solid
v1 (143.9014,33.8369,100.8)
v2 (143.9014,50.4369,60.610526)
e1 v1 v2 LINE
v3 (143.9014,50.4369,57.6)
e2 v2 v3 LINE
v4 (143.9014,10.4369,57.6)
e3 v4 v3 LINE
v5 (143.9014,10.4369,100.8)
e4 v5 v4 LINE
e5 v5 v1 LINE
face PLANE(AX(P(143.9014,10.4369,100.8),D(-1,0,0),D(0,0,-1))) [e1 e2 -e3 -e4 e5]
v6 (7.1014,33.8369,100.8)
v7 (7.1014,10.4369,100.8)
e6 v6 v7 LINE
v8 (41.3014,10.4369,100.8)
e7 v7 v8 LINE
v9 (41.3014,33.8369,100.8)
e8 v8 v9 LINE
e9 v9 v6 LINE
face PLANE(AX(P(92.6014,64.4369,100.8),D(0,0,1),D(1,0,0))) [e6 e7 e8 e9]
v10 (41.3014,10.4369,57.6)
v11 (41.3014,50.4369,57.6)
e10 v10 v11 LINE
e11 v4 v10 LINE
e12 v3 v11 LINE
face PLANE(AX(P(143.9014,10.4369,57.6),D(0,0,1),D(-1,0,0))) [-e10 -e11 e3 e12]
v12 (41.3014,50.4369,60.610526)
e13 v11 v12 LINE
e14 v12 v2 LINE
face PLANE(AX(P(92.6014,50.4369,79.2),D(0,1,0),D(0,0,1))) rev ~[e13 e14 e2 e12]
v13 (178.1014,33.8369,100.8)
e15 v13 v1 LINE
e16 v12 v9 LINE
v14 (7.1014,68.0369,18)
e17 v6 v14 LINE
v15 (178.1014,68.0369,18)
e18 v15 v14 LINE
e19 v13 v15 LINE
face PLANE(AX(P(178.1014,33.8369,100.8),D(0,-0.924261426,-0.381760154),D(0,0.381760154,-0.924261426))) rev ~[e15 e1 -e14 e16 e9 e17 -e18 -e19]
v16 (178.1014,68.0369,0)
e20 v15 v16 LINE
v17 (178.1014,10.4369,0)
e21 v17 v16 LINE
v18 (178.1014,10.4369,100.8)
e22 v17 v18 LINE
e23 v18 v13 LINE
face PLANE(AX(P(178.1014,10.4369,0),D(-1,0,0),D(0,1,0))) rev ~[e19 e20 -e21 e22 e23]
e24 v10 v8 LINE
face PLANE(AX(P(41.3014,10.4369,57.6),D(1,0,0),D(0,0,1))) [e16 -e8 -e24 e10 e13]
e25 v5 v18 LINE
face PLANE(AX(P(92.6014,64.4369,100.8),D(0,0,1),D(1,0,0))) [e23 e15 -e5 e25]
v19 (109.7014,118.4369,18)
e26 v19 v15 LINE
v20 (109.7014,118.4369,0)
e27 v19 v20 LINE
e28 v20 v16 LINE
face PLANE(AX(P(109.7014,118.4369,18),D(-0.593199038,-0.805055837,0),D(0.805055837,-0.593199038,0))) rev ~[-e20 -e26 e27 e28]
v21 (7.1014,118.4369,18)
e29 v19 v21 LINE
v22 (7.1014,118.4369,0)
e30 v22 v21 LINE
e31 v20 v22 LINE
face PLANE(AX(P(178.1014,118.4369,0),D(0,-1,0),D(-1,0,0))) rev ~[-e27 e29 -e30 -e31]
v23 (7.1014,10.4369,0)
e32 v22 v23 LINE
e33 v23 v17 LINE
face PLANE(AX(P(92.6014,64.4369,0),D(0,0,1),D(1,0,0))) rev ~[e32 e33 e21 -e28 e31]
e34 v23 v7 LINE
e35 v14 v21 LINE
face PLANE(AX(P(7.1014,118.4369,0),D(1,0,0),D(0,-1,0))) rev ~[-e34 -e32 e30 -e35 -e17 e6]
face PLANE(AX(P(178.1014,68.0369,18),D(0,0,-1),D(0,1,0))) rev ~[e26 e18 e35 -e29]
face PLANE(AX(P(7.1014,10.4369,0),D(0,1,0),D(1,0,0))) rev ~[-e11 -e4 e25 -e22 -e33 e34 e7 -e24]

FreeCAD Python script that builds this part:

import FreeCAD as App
import Part
import Sketcher
from FreeCAD import Vector

doc = App.newDocument("Part")
body = doc.addObject("PartDesign::Body", "Body")

sketch1 = body.newObject("Sketcher::SketchObject", "Sketch")
sketch1.AttachmentSupport = (doc.getObject("XY_Plane"), [""])
sketch1.MapMode = "FlatFace"
sketch1.addGeometry(Part.LineSegment(Vector(7, 118, 0), Vector(7, 10, 0)), False)
sketch1.addGeometry(Part.LineSegment(Vector(7, 10, 0), Vector(178, 10, 0)), False)
sketch1.addGeometry(Part.LineSegment(Vector(178, 10, 0), Vector(178, 118, 0)), False)
sketch1.addGeometry(Part.LineSegment(Vector(178, 118, 0), Vector(7, 118, 0)), False)
sketch1.addConstraint(Sketcher.Constraint("Coincident", 0, 2, 1, 1))
sketch1.addConstraint(Sketcher.Constraint("Coincident", 1, 2, 2, 1))
sketch1.addConstraint(Sketcher.Constraint("Coincident", 2, 2, 3, 1))
sketch1.addConstraint(Sketcher.Constraint("Coincident", 3, 2, 0, 1))
sketch1.addConstraint(Sketcher.Constraint("Vertical", 0))
sketch1.addConstraint(Sketcher.Constraint("Horizontal", 1))
sketch1.addConstraint(Sketcher.Constraint("Vertical", 2))
sketch1.addConstraint(Sketcher.Constraint("Horizontal", 3))
sketch1.addConstraint(Sketcher.Constraint("DistanceX", 1, 1, 1, 2, 171.0))
sketch1.addConstraint(Sketcher.Constraint("DistanceY", 0, 2, 0, 1, 108.0))
sketch1.addConstraint(Sketcher.Constraint("DistanceY", -1, 1, 0, 2, 10.437))
sketch1.addConstraint(Sketcher.Constraint("DistanceX", -1, 1, 0, 2, 7.1014))
pad1 = body.newObject("PartDesign::Pad", "Pad")
pad1.Profile = sketch1
pad1.Length = 100.8

sketch2 = body.newObject("Sketcher::SketchObject", "Sketch001")
sketch2.AttachmentSupport = (doc.getObject("YZ_Plane"), [""])
sketch2.MapMode = "FlatFace"
sketch2.AttachmentOffset = App.Placement(Vector(0, 0, 178.1014), App.Rotation())
sketch2.addGeometry(Part.LineSegment(Vector(118, 101, 0), Vector(34, 101, 0)), False)
sketch2.addGeometry(Part.LineSegment(Vector(34, 101, 0), Vector(68, 18, 0)), False)
sketch2.addGeometry(Part.LineSegment(Vector(68, 18, 0), Vector(118, 18, 0)), False)
sketch2.addGeometry(Part.LineSegment(Vector(118, 18, 0), Vector(118, 101, 0)), False)
sketch2.addConstraint(Sketcher.Constraint("Coincident", 0, 2, 1, 1))
sketch2.addConstraint(Sketcher.Constraint("Coincident", 1, 2, 2, 1))
sketch2.addConstraint(Sketcher.Constraint("Coincident", 2, 2, 3, 1))
sketch2.addConstraint(Sketcher.Constraint("Coincident", 3, 2, 0, 1))
sketch2.addConstraint(Sketcher.Constraint("Horizontal", 0))
sketch2.addConstraint(Sketcher.Constraint("Horizontal", 2))
sketch2.addConstraint(Sketcher.Constraint("Vertical", 3))
sketch2.addConstraint(Sketcher.Constraint("DistanceX", 0, 2, 0, 1, 84.6))
sketch2.addConstraint(Sketcher.Constraint("DistanceX", 2, 1, 2, 2, 50.4))
sketch2.addConstraint(Sketcher.Constraint("DistanceY", 3, 1, 3, 2, 82.8))
sketch2.addConstraint(Sketcher.Constraint("DistanceY", -1, 1, 1, 2, 18.0))
sketch2.addConstraint(Sketcher.Constraint("DistanceX", -1, 1, 0, 2, 33.837))
pocket1 = body.newObject("PartDesign::Pocket", "Pocket")
pocket1.Profile = sketch2
pocket1.Length = 200

sketch3 = body.newObject("Sketcher::SketchObject", "Sketch002")
sketch3.AttachmentSupport = (doc.getObject("XZ_Plane"), [""])
sketch3.MapMode = "FlatFace"
sketch3.AttachmentOffset = App.Placement(Vector(0, 0, -10.4369), App.Rotation())
sketch3.addGeometry(Part.LineSegment(Vector(144, 58, 0), Vector(144, 101, 0)), False)
sketch3.addGeometry(Part.LineSegment(Vector(144, 101, 0), Vector(41, 101, 0)), False)
sketch3.addGeometry(Part.LineSegment(Vector(41, 101, 0), Vector(41, 58, 0)), False)
sketch3.addGeometry(Part.LineSegment(Vector(41, 58, 0), Vector(144, 58, 0)), False)
sketch3.addConstraint(Sketcher.Constraint("Coincident", 0, 2, 1, 1))
sketch3.addConstraint(Sketcher.Constraint("Coincident", 1, 2, 2, 1))
sketch3.addConstraint(Sketcher.Constraint("Coincident", 2, 2, 3, 1))
sketch3.addConstraint(Sketcher.Constraint("Coincident", 3, 2, 0, 1))
sketch3.addConstraint(Sketcher.Constraint("Vertical", 0))
sketch3.addConstraint(Sketcher.Constraint("Horizontal", 1))
sketch3.addConstraint(Sketcher.Constraint("Vertical", 2))
sketch3.addConstraint(Sketcher.Constraint("Horizontal", 3))
sketch3.addConstraint(Sketcher.Constraint("DistanceX", 1, 2, 1, 1, 102.6))
sketch3.addConstraint(Sketcher.Constraint("DistanceY", 0, 1, 0, 2, 43.2))
sketch3.addConstraint(Sketcher.Constraint("DistanceY", -1, 1, 0, 2, 100.8))
sketch3.addConstraint(Sketcher.Constraint("DistanceX", -1, 1, 0, 2, 143.9014))
pocket2 = body.newObject("PartDesign::Pocket", "Pocket001")
pocket2.Profile = sketch3
pocket2.Length = 40

sketch4 = body.newObject("Sketcher::SketchObject", "Sketch003")
sketch4.AttachmentSupport = (doc.getObject("XY_Plane"), [""])
sketch4.MapMode = "FlatFace"
sketch4.AttachmentOffset = App.Placement(Vector(0, 0, 18), App.Rotation())
sketch4.addGeometry(Part.LineSegment(Vector(178, 118, 0), Vector(110, 118, 0)), False)
sketch4.addGeometry(Part.LineSegment(Vector(110, 118, 0), Vector(178, 68, 0)), False)
sketch4.addGeometry(Part.LineSegment(Vector(178, 68, 0), Vector(178, 118, 0)), False)
sketch4.addConstraint(Sketcher.Constraint("Coincident", 0, 2, 1, 1))
sketch4.addConstraint(Sketcher.Constraint("Coincident", 1, 2, 2, 1))
sketch4.addConstraint(Sketcher.Constraint("Coincident", 2, 2, 0, 1))
sketch4.addConstraint(Sketcher.Constraint("Horizontal", 0))
sketch4.addConstraint(Sketcher.Constraint("Vertical", 2))
sketch4.addConstraint(Sketcher.Constraint("DistanceX", 0, 2, 0, 1, 68.4))
sketch4.addConstraint(Sketcher.Constraint("DistanceY", 2, 1, 2, 2, 50.4))
sketch4.addConstraint(Sketcher.Constraint("DistanceY", -1, 1, 0, 2, 118.437))
sketch4.addConstraint(Sketcher.Constraint("DistanceX", -1, 1, 0, 2, 109.7014))
pocket3 = body.newObject("PartDesign::Pocket", "Pocket002")
pocket3.Profile = sketch4
pocket3.Length = 40

doc.recompute()
